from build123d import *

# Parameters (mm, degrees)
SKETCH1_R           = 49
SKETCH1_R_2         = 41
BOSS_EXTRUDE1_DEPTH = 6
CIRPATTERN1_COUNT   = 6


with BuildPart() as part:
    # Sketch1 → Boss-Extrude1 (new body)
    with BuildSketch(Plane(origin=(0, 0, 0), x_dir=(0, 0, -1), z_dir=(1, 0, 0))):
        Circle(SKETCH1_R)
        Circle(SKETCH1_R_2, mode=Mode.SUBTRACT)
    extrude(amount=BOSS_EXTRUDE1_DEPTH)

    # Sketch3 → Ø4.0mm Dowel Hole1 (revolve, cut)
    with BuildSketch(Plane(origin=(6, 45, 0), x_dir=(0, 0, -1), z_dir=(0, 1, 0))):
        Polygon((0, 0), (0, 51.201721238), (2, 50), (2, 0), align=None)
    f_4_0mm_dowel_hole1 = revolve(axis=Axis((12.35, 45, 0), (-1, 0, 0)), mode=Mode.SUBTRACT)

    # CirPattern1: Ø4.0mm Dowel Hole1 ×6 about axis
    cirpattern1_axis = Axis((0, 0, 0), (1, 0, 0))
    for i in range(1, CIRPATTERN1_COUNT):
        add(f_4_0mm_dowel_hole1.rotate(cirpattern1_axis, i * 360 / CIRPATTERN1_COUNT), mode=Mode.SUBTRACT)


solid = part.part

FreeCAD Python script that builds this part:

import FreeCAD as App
import Part
import Sketcher
from FreeCAD import Vector
Q = App.Units.Quantity


def add_polygon(sketch, points):
    """Adds a closed chain of lines whose ends are joined by coincident constraints."""
    first, n = sketch.GeometryCount, len(points)
    for a, b in zip(points, points[1:] + points[:1]):
        sketch.addGeometry(Part.LineSegment(App.Vector(*a, 0), App.Vector(*b, 0)), False)
    for i in range(n):
        sketch.addConstraint(Sketcher.Constraint("Coincident", first + i, 2, first + (i + 1) % n, 1))

doc = App.newDocument("Part")
body = doc.addObject("PartDesign::Body", "Body")

# Sketch on YZ plane
sketch1 = body.newObject("Sketcher::SketchObject", "Sketch")
sketch1.AttachmentSupport = (doc.getObject("YZ_Plane"), [""])
sketch1.MapMode = "FlatFace"
sketch1.addGeometry(Part.Circle(Vector(0, 0, 0), Vector(0, 0, 1), 49), False)
sketch1.addGeometry(Part.Circle(Vector(0, 0, 0), Vector(0, 0, 1), 41), False)
sketch1.addConstraint(Sketcher.Constraint("Coincident", 0, 3, -1, 1))
sketch1.addConstraint(Sketcher.Constraint("Coincident", 1, 3, -1, 1))
sketch1.addConstraint(Sketcher.Constraint("Diameter", 0, 98.0))
sketch1.addConstraint(Sketcher.Constraint("Diameter", 1, 82.0))
pad1 = body.newObject("PartDesign::Pad", "Pad")
pad1.Profile = sketch1
pad1.Length = 6

# Sketch on XZ plane
sketch2 = body.newObject("Sketcher::SketchObject", "Sketch001")
sketch2.AttachmentSupport = (doc.getObject("XZ_Plane"), [""])
sketch2.MapMode = "FlatFace"
sketch2.AttachmentOffset = App.Placement(Vector(0, 0, -45), App.Rotation())
add_polygon(sketch2, [(-45.201721, 0), (6, 0), (6, -2), (-44, -2)])  # lines 0-3
sketch2.addConstraint(Sketcher.Constraint("Horizontal", 0))
sketch2.addConstraint(Sketcher.Constraint("Vertical", 1))
sketch2.addConstraint(Sketcher.Constraint("Horizontal", 2))
sketch2.addConstraint(Sketcher.Constraint("PointOnObject", 0, 2, -1))
sketch2.addConstraint(Sketcher.Constraint("DistanceX", 2, 2, 2, 1, 50.0))
sketch2.addConstraint(Sketcher.Constraint("DistanceY", 1, 2, 1, 1, 2.0))
sketch2.addConstraint(Sketcher.Constraint("Angle", 3, Q("121 deg")))
sketch2.addConstraint(Sketcher.Constraint("DistanceX", -1, 1, 0, 2, 6.0))
groove = body.newObject("PartDesign::Groove", "Groove")
groove.Profile = sketch2
groove.ReferenceAxis = (sketch2, ["H_Axis"])
groove.Angle = 360
doc.recompute()

polarpattern = body.newObject("PartDesign::PolarPattern", "PolarPattern")
polarpattern.Originals = [groove]
polarpattern.Axis = (doc.getObject("X_Axis"), [""])
polarpattern.Angle = 360
polarpattern.Occurrences = 6
body.Tip = polarpattern

doc.recompute()
